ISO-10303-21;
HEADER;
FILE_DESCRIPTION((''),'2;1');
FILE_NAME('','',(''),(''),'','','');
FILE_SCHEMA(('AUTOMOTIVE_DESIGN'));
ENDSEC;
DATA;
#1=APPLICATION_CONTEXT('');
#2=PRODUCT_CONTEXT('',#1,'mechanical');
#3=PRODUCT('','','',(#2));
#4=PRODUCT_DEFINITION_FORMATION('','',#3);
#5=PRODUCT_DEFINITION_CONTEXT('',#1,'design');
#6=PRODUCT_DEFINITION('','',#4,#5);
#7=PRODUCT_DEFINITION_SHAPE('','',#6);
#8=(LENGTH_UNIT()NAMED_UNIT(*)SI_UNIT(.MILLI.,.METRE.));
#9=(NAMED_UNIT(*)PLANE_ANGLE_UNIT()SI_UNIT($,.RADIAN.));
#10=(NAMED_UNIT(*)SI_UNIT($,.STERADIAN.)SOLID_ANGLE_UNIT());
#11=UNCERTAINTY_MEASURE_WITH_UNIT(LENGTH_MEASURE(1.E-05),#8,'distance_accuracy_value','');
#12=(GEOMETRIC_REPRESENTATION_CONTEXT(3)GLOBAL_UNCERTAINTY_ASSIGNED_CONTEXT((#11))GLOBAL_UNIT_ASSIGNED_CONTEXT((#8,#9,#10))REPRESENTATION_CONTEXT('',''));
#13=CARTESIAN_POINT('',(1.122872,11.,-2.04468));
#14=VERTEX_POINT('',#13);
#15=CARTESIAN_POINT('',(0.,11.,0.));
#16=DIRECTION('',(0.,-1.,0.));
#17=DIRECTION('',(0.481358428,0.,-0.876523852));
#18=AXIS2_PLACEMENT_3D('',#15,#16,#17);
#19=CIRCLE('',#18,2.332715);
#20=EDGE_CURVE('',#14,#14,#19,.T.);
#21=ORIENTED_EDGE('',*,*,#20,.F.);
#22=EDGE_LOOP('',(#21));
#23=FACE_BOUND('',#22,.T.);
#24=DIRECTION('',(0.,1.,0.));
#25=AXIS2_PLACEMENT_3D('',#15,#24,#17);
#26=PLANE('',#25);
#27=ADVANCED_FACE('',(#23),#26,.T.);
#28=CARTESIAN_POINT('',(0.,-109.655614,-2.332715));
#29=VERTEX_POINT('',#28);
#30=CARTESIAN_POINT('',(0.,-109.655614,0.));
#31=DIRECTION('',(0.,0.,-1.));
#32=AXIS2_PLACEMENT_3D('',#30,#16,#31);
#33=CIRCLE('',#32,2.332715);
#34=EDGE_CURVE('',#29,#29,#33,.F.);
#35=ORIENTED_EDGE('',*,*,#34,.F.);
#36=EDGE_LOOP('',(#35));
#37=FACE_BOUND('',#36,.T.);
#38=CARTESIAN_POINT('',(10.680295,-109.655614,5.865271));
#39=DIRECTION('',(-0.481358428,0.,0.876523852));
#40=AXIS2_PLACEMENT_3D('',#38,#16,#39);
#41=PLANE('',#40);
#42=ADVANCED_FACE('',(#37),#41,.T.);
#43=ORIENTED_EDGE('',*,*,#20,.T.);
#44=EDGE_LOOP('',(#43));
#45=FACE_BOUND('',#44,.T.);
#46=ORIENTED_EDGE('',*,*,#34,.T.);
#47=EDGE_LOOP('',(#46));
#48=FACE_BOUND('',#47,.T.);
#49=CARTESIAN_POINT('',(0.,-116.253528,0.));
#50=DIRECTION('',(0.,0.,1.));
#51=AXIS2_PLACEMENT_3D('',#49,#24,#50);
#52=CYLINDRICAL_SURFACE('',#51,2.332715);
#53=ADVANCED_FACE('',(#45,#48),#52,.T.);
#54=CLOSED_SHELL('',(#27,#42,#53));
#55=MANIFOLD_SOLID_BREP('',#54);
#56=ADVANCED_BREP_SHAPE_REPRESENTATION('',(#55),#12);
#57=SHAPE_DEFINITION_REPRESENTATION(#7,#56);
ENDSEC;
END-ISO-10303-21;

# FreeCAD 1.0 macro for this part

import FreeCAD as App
import Part
import Sketcher
from FreeCAD import Vector
Q = App.Units.Quantity

doc = App.newDocument("Part")
body = doc.addObject("PartDesign::Body", "Body")

# Sketch on XZ plane
sketch1 = body.newObject("Sketcher::SketchObject", "Sketch")
sketch1.AttachmentSupport = (doc.getObject("XZ_Plane"), [""])
sketch1.MapMode = "FlatFace"
sketch1.addGeometry(Part.Circle(Vector(0, 0, 0), Vector(0, 0, 1), 2.3), False)
sketch1.addConstraint(Sketcher.Constraint("Coincident", 0, 3, -1, 1))
sketch1.addConstraint(Sketcher.Constraint("Diameter", 0, Q("4.66543 mm")))
pad1 = body.newObject("PartDesign::Pad", "Pad")
pad1.Profile = sketch1
pad1.Length = 109.655614

# Sketch on XZ plane
sketch2 = body.newObject("Sketcher::SketchObject", "Sketch001")
sketch2.AttachmentSupport = (doc.getObject("XZ_Plane"), [""])
sketch2.MapMode = "FlatFace"
sketch2.addGeometry(Part.Circle(Vector(0, 0, 0), Vector(0, 0, 1), 2.3), False)
sketch2.addConstraint(Sketcher.Constraint("Coincident", 0, 3, -1, 1))
sketch2.addConstraint(Sketcher.Constraint("Diameter", 0, Q("4.66543 mm")))
pad2 = body.newObject("PartDesign::Pad", "Pad001")
pad2.Profile = sketch2
pad2.Length = 11
pad2.Reversed = True

doc.recompute()
